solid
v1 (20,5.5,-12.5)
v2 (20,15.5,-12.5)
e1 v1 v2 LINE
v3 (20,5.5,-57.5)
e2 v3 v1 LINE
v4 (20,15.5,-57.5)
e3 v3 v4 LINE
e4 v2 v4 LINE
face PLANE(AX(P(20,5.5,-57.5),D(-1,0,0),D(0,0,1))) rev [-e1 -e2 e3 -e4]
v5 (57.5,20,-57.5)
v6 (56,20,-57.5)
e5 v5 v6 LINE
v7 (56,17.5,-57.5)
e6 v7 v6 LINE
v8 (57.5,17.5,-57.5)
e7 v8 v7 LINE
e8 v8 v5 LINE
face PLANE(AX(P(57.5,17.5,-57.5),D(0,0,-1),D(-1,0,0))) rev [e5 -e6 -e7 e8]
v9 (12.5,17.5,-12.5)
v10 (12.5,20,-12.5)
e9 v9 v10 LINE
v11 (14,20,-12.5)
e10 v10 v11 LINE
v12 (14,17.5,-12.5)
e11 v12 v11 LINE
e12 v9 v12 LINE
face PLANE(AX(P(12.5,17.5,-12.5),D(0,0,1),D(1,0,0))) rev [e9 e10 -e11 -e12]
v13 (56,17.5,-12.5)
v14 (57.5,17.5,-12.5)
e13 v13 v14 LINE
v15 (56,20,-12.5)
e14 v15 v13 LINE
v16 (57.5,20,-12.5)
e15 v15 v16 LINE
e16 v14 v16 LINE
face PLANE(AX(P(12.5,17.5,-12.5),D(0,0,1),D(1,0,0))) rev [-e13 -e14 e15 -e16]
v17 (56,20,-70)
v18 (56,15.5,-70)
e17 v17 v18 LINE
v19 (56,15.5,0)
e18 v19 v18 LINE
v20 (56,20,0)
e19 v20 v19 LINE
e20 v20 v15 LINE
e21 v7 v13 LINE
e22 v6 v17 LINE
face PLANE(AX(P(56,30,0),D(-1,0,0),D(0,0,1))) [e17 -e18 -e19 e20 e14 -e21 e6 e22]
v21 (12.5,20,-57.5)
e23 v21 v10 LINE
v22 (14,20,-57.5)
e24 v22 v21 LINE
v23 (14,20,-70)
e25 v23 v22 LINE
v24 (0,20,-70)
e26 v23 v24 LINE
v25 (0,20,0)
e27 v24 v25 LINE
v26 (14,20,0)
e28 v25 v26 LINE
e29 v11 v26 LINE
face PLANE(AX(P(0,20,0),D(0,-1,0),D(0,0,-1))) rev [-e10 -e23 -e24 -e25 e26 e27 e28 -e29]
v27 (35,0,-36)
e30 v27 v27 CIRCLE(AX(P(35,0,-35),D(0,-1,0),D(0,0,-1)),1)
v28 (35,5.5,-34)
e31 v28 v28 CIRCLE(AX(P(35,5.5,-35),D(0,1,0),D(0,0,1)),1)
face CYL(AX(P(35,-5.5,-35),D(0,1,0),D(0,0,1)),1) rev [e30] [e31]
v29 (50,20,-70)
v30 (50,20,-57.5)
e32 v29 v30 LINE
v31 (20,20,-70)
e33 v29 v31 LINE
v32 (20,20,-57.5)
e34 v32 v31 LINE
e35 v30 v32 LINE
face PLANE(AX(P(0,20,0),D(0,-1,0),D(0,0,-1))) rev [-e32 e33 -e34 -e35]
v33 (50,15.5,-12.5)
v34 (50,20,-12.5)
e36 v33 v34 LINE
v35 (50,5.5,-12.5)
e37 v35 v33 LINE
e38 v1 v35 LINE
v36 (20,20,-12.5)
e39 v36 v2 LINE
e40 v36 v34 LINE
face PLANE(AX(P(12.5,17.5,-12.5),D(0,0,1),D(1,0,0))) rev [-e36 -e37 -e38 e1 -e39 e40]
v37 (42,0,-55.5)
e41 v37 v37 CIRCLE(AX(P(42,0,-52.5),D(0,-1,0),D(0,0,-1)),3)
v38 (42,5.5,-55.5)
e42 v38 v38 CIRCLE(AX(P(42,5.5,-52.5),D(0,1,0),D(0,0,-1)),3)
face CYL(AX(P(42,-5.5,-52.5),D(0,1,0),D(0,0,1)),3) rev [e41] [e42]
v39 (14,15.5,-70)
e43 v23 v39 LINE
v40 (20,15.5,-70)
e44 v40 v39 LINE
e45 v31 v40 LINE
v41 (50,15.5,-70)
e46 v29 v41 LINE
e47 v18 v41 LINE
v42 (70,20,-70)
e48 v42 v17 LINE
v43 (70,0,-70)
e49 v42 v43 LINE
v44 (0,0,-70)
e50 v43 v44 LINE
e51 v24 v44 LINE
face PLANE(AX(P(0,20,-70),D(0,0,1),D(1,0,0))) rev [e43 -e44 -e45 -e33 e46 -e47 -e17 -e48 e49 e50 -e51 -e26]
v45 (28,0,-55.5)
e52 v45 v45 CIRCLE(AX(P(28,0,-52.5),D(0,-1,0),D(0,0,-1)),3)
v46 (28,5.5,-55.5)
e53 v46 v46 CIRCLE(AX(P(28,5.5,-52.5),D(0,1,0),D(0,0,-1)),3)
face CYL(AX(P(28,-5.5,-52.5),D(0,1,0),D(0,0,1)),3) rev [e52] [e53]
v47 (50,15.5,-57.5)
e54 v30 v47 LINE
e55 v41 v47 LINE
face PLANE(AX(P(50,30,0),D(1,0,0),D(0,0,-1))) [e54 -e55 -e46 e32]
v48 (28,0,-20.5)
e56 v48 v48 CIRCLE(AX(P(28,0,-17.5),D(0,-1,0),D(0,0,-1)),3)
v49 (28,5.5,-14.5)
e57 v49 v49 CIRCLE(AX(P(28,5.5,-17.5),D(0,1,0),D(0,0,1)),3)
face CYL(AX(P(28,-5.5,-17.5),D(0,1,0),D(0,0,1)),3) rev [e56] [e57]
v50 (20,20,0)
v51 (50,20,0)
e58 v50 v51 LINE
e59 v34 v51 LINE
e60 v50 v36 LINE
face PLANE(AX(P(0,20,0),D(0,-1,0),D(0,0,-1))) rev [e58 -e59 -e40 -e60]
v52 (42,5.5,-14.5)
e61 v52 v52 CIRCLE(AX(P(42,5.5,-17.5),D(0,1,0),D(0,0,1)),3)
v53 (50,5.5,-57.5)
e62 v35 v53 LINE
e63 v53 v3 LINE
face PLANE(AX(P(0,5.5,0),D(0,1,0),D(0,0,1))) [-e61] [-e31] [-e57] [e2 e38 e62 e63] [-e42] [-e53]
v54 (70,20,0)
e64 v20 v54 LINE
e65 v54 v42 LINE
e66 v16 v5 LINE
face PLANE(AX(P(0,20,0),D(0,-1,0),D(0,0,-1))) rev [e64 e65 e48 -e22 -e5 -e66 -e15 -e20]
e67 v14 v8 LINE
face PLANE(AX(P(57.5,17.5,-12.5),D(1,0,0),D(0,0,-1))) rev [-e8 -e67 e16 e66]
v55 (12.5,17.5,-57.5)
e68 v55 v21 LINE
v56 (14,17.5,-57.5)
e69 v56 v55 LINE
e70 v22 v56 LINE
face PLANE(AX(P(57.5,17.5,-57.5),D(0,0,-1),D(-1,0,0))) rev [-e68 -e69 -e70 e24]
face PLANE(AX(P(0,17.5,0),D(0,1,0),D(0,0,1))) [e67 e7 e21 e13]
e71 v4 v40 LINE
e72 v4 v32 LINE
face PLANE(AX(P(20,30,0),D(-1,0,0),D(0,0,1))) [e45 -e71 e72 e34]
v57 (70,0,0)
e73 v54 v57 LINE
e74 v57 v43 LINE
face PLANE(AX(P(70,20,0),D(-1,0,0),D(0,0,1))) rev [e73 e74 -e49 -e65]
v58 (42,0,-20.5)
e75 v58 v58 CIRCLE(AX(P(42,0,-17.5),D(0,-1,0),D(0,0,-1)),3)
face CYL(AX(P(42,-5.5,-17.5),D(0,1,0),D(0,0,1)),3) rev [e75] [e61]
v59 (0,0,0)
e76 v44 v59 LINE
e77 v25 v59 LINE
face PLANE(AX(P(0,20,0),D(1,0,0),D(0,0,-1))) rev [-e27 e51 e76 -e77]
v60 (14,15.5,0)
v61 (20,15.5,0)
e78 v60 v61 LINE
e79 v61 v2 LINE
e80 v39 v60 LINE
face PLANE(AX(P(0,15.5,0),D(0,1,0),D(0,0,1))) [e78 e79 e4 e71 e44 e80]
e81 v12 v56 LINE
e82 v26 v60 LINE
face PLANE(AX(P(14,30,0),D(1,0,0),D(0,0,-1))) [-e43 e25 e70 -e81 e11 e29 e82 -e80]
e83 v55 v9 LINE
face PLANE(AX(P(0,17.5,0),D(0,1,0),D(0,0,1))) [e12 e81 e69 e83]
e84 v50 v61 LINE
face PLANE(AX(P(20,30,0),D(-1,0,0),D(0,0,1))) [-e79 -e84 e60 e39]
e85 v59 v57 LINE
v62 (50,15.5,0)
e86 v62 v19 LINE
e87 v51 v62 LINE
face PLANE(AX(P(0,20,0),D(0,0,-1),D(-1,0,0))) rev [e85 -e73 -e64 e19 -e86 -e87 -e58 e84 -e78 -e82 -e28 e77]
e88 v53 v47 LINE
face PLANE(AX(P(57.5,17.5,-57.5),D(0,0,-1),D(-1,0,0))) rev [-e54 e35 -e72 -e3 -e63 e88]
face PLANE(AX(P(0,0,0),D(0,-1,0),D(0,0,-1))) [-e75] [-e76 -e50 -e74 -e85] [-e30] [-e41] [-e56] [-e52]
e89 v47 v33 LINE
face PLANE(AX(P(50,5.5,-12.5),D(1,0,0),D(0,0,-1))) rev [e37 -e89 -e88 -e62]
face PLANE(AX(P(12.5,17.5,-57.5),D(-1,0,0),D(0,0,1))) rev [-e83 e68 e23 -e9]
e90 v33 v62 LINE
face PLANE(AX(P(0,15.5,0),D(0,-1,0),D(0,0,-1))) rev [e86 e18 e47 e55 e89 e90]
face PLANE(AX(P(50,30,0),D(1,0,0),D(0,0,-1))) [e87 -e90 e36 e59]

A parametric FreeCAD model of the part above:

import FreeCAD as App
import Part
import Sketcher

V = App.Vector
Q = App.Units.Quantity

doc = App.newDocument("Part")
params = doc.addObject("Spreadsheet::Sheet", "Params")
for row, (alias, value) in enumerate([
    ("sketch1_width", "70 mm"),
    ("pad1_length", "20 mm"),
    ("sketch2_width", "45 mm"),
    ("pocket1_length", "2.5 mm"),
    ("sketch3_width", "6 mm"),
    ("sketch3_height", "70 mm"),
    ("pocket2_length", "12.5 mm"),
    ("pocket2_length2", "2 mm"),
    ("sketch4_width", "30 mm"),
    ("sketch4_height", "45 mm"),
    ("pocket3_length", "12 mm"),
    ("sketch5_diameter", "6 mm"),
    ("sketch5_diameter2", "2 mm"),
    ("pocket4_length", "11 mm"),
], start=1):
    params.set(f"A{row}", alias)
    params.set(f"B{row}", "=" + value)
    params.setAlias(f"B{row}", alias)

body = doc.addObject("PartDesign::Body", "Body")

# Sketch on XZ plane
sketch1 = doc.addObject("Sketcher::SketchObject", "Sketch")
body.addObject(sketch1)
sketch1.AttachmentSupport = (doc.XZ_Plane, [""])
sketch1.MapMode = "FlatFace"
sketch1.addGeometry([
    Part.LineSegment(V(0, -70, 0), V(0, 0, 0)),
    Part.LineSegment(V(0, 0, 0), V(70, 0, 0)),
    Part.LineSegment(V(70, 0, 0), V(70, -70, 0)),
    Part.LineSegment(V(70, -70, 0), V(0, -70, 0)),
], False)
sketch1.addConstraint([
    Sketcher.Constraint("Coincident", 0, 2, 1, 1),
    Sketcher.Constraint("Coincident", 1, 2, 2, 1),
    Sketcher.Constraint("Coincident", 2, 2, 3, 1),
    Sketcher.Constraint("Coincident", 3, 2, 0, 1),
    Sketcher.Constraint("Vertical", 0),
    Sketcher.Constraint("Horizontal", 1),
    Sketcher.Constraint("Vertical", 2),
    Sketcher.Constraint("Horizontal", 3),
    Sketcher.Constraint("Coincident", 0, 2, -1, 1),
    Sketcher.Constraint("Equal", 3, 0),
    Sketcher.Constraint("DistanceX", 1, 1, 1, 2, Q("70 mm")),
])
sketch1.setExpression("Constraints[10]", "Params.sketch1_width")
pad1 = doc.addObject("PartDesign::Pad", "Pad")
body.addObject(pad1)
pad1.Profile = sketch1
pad1.setExpression("Length", "Params.pad1_length")
pad1.Reversed = True

# Sketch on XZ plane
sketch2 = doc.addObject("Sketcher::SketchObject", "Sketch001")
body.addObject(sketch2)
sketch2.AttachmentSupport = (doc.XZ_Plane, [""])
sketch2.MapMode = "FlatFace"
sketch2.AttachmentOffset = App.Placement(V(0, 0, -20), App.Rotation())
sketch2.addGeometry([
    Part.LineSegment(V(12, -58, 0), V(12, -12, 0)),
    Part.LineSegment(V(12, -12, 0), V(58, -12, 0)),
    Part.LineSegment(V(58, -12, 0), V(58, -58, 0)),
    Part.LineSegment(V(58, -58, 0), V(12, -58, 0)),
], False)
sketch2.addConstraint([
    Sketcher.Constraint("Coincident", 0, 2, 1, 1),
    Sketcher.Constraint("Coincident", 1, 2, 2, 1),
    Sketcher.Constraint("Coincident", 2, 2, 3, 1),
    Sketcher.Constraint("Coincident", 3, 2, 0, 1),
    Sketcher.Constraint("Vertical", 0),
    Sketcher.Constraint("Horizontal", 1),
    Sketcher.Constraint("Vertical", 2),
    Sketcher.Constraint("Horizontal", 3),
    Sketcher.Constraint("Equal", 3, 0),
    Sketcher.Constraint("DistanceX", 1, 1, 1, 2, Q("45 mm")),
    Sketcher.Constraint("DistanceX", -1, 1, 0, 2, Q("12.5 mm")),
    Sketcher.Constraint("DistanceY", 0, 2, -1, 1, Q("12.5 mm")),
])
sketch2.setExpression("Constraints[9]", "Params.sketch2_width")
pocket1 = doc.addObject("PartDesign::Pocket", "Pocket")
body.addObject(pocket1)
pocket1.Profile = sketch2
pocket1.setExpression("Length", "Params.pocket1_length")
pocket1.Reversed = True

# Sketch on XZ plane
sketch3 = doc.addObject("Sketcher::SketchObject", "Sketch002")
body.addObject(sketch3)
sketch3.AttachmentSupport = (doc.XZ_Plane, [""])
sketch3.MapMode = "FlatFace"
sketch3.AttachmentOffset = App.Placement(V(0, 0, -17.5), App.Rotation())
sketch3.addGeometry([
    Part.LineSegment(V(50, -70, 0), V(50, 0, 0)),  # 0
    Part.LineSegment(V(50, 0, 0), V(56, 0, 0)),  # 1
    Part.LineSegment(V(56, 0, 0), V(56, -70, 0)),  # 2
    Part.LineSegment(V(56, -70, 0), V(50, -70, 0)),  # 3
    Part.LineSegment(V(14, -70, 0), V(14, 0, 0)),  # 4
    Part.LineSegment(V(14, 0, 0), V(20, 0, 0)),  # 5
    Part.LineSegment(V(20, 0, 0), V(20, -70, 0)),  # 6
    Part.LineSegment(V(20, -70, 0), V(14, -70, 0)),  # 7
], False)
sketch3.addConstraint([
    Sketcher.Constraint("Coincident", 0, 2, 1, 1),
    Sketcher.Constraint("Coincident", 1, 2, 2, 1),
    Sketcher.Constraint("Coincident", 2, 2, 3, 1),
    Sketcher.Constraint("Coincident", 3, 2, 0, 1),
    Sketcher.Constraint("Coincident", 4, 2, 5, 1),
    Sketcher.Constraint("Coincident", 5, 2, 6, 1),
    Sketcher.Constraint("Coincident", 6, 2, 7, 1),
    Sketcher.Constraint("Coincident", 7, 2, 4, 1),
    Sketcher.Constraint("Vertical", 0),
    Sketcher.Constraint("Horizontal", 1),
    Sketcher.Constraint("Vertical", 2),
    Sketcher.Constraint("Horizontal", 3),
    Sketcher.Constraint("Vertical", 4),
    Sketcher.Constraint("Horizontal", 5),
    Sketcher.Constraint("Vertical", 6),
    Sketcher.Constraint("Horizontal", 7),
    Sketcher.Constraint("PointOnObject", 0, 2, -1),
    Sketcher.Constraint("PointOnObject", 4, 2, -1),
    Sketcher.Constraint("Horizontal", 3, 2, 6, 2),
    Sketcher.Constraint("Equal", 3, 5),
    Sketcher.Constraint("DistanceX", 1, 1, 1, 2, Q("6 mm")),
    Sketcher.Constraint("DistanceY", 0, 1, 0, 2, Q("70 mm")),
    Sketcher.Constraint("DistanceX", -1, 1, 0, 2, Q("50 mm")),
    Sketcher.Constraint("DistanceX", -1, 1, 4, 2, Q("14 mm")),
])
sketch3.setExpression("Constraints[20]", "Params.sketch3_width")
sketch3.setExpression("Constraints[21]", "Params.sketch3_height")
pocket2 = doc.addObject("PartDesign::Pocket", "Pocket001")
body.addObject(pocket2)
pocket2.Profile = sketch3
pocket2.Type = "TwoLengths"
pocket2.setExpression("Length", "Params.pocket2_length")
pocket2.setExpression("Length2", "Params.pocket2_length2")

# Sketch on XZ plane
sketch4 = doc.addObject("Sketcher::SketchObject", "Sketch003")
body.addObject(sketch4)
sketch4.AttachmentSupport = (doc.XZ_Plane, [""])
sketch4.MapMode = "FlatFace"
sketch4.AttachmentOffset = App.Placement(V(0, 0, -17.5), App.Rotation())
sketch4.addGeometry([
    Part.LineSegment(V(20, -58, 0), V(20, -12, 0)),
    Part.LineSegment(V(20, -12, 0), V(50, -12, 0)),
    Part.LineSegment(V(50, -12, 0), V(50, -58, 0)),
    Part.LineSegment(V(50, -58, 0), V(20, -58, 0)),
], False)
sketch4.addConstraint([
    Sketcher.Constraint("Coincident", 0, 2, 1, 1),
    Sketcher.Constraint("Coincident", 1, 2, 2, 1),
    Sketcher.Constraint("Coincident", 2, 2, 3, 1),
    Sketcher.Constraint("Coincident", 3, 2, 0, 1),
    Sketcher.Constraint("Vertical", 0),
    Sketcher.Constraint("Horizontal", 1),
    Sketcher.Constraint("Vertical", 2),
    Sketcher.Constraint("Horizontal", 3),
    Sketcher.Constraint("DistanceX", 1, 1, 1, 2, Q("30 mm")),
    Sketcher.Constraint("DistanceY", 0, 1, 0, 2, Q("45 mm")),
    Sketcher.Constraint("DistanceX", -1, 1, 0, 2, Q("20 mm")),
    Sketcher.Constraint("DistanceY", 0, 2, -1, 1, Q("12.5 mm")),
])
sketch4.setExpression("Constraints[8]", "Params.sketch4_width")
sketch4.setExpression("Constraints[9]", "Params.sketch4_height")
pocket3 = doc.addObject("PartDesign::Pocket", "Pocket002")
body.addObject(pocket3)
pocket3.Profile = sketch4
pocket3.setExpression("Length", "Params.pocket3_length")
pocket3.Reversed = True

# Sketch on XZ plane
sketch5 = doc.addObject("Sketcher::SketchObject", "Sketch004")
body.addObject(sketch5)
sketch5.AttachmentSupport = (doc.XZ_Plane, [""])
sketch5.MapMode = "FlatFace"
sketch5.AttachmentOffset = App.Placement(V(0, 0, -5.5), App.Rotation())
sketch5.addGeometry([
    Part.Circle(V(28, -17.5, 0), V(0, 0, 1), 3),  # 0
    Part.Circle(V(42, -17.5, 0), V(0, 0, 1), 3),  # 1
    Part.Circle(V(42, -52.5, 0), V(0, 0, 1), 3),  # 2
    Part.Circle(V(28, -52.5, 0), V(0, 0, 1), 3),  # 3
    Part.Circle(V(35, -35, 0), V(0, 0, 1), 1),  # 4
], False)
sketch5.addConstraint([
    Sketcher.Constraint("Equal", 0, 1),
    Sketcher.Constraint("Equal", 1, 2),
    Sketcher.Constraint("Equal", 2, 3),
    Sketcher.Constraint("Horizontal", 0, 3, 1, 3),
    Sketcher.Constraint("Horizontal", 2, 3, 3, 3),
    Sketcher.Constraint("Vertical", 1, 3, 2, 3),
    Sketcher.Constraint("Vertical", 0, 3, 3, 3),
    Sketcher.Constraint("Diameter", 0, Q("6 mm")),
    Sketcher.Constraint("Diameter", 4, Q("2 mm")),
    Sketcher.Constraint("DistanceX", -1, 1, 0, 3, Q("28 mm")),
    Sketcher.Constraint("DistanceX", -1, 1, 1, 3, Q("42 mm")),
    Sketcher.Constraint("DistanceX", -1, 1, 4, 3, Q("35 mm")),
    Sketcher.Constraint("DistanceY", 4, 3, -1, 1, Q("35 mm")),
    Sketcher.Constraint("DistanceY", 2, 3, 1, 3, Q("35 mm")),
    Sketcher.Constraint("DistanceY", 0, 3, -1, 1, Q("17.5 mm")),
])
sketch5.setExpression("Constraints[7]", "Params.sketch5_diameter")
sketch5.setExpression("Constraints[8]", "Params.sketch5_diameter2")
pocket4 = doc.addObject("PartDesign::Pocket", "Pocket003")
body.addObject(pocket4)
pocket4.Profile = sketch5
pocket4.setExpression("Length", "Params.pocket4_length")
pocket4.Reversed = True

doc.recompute()
